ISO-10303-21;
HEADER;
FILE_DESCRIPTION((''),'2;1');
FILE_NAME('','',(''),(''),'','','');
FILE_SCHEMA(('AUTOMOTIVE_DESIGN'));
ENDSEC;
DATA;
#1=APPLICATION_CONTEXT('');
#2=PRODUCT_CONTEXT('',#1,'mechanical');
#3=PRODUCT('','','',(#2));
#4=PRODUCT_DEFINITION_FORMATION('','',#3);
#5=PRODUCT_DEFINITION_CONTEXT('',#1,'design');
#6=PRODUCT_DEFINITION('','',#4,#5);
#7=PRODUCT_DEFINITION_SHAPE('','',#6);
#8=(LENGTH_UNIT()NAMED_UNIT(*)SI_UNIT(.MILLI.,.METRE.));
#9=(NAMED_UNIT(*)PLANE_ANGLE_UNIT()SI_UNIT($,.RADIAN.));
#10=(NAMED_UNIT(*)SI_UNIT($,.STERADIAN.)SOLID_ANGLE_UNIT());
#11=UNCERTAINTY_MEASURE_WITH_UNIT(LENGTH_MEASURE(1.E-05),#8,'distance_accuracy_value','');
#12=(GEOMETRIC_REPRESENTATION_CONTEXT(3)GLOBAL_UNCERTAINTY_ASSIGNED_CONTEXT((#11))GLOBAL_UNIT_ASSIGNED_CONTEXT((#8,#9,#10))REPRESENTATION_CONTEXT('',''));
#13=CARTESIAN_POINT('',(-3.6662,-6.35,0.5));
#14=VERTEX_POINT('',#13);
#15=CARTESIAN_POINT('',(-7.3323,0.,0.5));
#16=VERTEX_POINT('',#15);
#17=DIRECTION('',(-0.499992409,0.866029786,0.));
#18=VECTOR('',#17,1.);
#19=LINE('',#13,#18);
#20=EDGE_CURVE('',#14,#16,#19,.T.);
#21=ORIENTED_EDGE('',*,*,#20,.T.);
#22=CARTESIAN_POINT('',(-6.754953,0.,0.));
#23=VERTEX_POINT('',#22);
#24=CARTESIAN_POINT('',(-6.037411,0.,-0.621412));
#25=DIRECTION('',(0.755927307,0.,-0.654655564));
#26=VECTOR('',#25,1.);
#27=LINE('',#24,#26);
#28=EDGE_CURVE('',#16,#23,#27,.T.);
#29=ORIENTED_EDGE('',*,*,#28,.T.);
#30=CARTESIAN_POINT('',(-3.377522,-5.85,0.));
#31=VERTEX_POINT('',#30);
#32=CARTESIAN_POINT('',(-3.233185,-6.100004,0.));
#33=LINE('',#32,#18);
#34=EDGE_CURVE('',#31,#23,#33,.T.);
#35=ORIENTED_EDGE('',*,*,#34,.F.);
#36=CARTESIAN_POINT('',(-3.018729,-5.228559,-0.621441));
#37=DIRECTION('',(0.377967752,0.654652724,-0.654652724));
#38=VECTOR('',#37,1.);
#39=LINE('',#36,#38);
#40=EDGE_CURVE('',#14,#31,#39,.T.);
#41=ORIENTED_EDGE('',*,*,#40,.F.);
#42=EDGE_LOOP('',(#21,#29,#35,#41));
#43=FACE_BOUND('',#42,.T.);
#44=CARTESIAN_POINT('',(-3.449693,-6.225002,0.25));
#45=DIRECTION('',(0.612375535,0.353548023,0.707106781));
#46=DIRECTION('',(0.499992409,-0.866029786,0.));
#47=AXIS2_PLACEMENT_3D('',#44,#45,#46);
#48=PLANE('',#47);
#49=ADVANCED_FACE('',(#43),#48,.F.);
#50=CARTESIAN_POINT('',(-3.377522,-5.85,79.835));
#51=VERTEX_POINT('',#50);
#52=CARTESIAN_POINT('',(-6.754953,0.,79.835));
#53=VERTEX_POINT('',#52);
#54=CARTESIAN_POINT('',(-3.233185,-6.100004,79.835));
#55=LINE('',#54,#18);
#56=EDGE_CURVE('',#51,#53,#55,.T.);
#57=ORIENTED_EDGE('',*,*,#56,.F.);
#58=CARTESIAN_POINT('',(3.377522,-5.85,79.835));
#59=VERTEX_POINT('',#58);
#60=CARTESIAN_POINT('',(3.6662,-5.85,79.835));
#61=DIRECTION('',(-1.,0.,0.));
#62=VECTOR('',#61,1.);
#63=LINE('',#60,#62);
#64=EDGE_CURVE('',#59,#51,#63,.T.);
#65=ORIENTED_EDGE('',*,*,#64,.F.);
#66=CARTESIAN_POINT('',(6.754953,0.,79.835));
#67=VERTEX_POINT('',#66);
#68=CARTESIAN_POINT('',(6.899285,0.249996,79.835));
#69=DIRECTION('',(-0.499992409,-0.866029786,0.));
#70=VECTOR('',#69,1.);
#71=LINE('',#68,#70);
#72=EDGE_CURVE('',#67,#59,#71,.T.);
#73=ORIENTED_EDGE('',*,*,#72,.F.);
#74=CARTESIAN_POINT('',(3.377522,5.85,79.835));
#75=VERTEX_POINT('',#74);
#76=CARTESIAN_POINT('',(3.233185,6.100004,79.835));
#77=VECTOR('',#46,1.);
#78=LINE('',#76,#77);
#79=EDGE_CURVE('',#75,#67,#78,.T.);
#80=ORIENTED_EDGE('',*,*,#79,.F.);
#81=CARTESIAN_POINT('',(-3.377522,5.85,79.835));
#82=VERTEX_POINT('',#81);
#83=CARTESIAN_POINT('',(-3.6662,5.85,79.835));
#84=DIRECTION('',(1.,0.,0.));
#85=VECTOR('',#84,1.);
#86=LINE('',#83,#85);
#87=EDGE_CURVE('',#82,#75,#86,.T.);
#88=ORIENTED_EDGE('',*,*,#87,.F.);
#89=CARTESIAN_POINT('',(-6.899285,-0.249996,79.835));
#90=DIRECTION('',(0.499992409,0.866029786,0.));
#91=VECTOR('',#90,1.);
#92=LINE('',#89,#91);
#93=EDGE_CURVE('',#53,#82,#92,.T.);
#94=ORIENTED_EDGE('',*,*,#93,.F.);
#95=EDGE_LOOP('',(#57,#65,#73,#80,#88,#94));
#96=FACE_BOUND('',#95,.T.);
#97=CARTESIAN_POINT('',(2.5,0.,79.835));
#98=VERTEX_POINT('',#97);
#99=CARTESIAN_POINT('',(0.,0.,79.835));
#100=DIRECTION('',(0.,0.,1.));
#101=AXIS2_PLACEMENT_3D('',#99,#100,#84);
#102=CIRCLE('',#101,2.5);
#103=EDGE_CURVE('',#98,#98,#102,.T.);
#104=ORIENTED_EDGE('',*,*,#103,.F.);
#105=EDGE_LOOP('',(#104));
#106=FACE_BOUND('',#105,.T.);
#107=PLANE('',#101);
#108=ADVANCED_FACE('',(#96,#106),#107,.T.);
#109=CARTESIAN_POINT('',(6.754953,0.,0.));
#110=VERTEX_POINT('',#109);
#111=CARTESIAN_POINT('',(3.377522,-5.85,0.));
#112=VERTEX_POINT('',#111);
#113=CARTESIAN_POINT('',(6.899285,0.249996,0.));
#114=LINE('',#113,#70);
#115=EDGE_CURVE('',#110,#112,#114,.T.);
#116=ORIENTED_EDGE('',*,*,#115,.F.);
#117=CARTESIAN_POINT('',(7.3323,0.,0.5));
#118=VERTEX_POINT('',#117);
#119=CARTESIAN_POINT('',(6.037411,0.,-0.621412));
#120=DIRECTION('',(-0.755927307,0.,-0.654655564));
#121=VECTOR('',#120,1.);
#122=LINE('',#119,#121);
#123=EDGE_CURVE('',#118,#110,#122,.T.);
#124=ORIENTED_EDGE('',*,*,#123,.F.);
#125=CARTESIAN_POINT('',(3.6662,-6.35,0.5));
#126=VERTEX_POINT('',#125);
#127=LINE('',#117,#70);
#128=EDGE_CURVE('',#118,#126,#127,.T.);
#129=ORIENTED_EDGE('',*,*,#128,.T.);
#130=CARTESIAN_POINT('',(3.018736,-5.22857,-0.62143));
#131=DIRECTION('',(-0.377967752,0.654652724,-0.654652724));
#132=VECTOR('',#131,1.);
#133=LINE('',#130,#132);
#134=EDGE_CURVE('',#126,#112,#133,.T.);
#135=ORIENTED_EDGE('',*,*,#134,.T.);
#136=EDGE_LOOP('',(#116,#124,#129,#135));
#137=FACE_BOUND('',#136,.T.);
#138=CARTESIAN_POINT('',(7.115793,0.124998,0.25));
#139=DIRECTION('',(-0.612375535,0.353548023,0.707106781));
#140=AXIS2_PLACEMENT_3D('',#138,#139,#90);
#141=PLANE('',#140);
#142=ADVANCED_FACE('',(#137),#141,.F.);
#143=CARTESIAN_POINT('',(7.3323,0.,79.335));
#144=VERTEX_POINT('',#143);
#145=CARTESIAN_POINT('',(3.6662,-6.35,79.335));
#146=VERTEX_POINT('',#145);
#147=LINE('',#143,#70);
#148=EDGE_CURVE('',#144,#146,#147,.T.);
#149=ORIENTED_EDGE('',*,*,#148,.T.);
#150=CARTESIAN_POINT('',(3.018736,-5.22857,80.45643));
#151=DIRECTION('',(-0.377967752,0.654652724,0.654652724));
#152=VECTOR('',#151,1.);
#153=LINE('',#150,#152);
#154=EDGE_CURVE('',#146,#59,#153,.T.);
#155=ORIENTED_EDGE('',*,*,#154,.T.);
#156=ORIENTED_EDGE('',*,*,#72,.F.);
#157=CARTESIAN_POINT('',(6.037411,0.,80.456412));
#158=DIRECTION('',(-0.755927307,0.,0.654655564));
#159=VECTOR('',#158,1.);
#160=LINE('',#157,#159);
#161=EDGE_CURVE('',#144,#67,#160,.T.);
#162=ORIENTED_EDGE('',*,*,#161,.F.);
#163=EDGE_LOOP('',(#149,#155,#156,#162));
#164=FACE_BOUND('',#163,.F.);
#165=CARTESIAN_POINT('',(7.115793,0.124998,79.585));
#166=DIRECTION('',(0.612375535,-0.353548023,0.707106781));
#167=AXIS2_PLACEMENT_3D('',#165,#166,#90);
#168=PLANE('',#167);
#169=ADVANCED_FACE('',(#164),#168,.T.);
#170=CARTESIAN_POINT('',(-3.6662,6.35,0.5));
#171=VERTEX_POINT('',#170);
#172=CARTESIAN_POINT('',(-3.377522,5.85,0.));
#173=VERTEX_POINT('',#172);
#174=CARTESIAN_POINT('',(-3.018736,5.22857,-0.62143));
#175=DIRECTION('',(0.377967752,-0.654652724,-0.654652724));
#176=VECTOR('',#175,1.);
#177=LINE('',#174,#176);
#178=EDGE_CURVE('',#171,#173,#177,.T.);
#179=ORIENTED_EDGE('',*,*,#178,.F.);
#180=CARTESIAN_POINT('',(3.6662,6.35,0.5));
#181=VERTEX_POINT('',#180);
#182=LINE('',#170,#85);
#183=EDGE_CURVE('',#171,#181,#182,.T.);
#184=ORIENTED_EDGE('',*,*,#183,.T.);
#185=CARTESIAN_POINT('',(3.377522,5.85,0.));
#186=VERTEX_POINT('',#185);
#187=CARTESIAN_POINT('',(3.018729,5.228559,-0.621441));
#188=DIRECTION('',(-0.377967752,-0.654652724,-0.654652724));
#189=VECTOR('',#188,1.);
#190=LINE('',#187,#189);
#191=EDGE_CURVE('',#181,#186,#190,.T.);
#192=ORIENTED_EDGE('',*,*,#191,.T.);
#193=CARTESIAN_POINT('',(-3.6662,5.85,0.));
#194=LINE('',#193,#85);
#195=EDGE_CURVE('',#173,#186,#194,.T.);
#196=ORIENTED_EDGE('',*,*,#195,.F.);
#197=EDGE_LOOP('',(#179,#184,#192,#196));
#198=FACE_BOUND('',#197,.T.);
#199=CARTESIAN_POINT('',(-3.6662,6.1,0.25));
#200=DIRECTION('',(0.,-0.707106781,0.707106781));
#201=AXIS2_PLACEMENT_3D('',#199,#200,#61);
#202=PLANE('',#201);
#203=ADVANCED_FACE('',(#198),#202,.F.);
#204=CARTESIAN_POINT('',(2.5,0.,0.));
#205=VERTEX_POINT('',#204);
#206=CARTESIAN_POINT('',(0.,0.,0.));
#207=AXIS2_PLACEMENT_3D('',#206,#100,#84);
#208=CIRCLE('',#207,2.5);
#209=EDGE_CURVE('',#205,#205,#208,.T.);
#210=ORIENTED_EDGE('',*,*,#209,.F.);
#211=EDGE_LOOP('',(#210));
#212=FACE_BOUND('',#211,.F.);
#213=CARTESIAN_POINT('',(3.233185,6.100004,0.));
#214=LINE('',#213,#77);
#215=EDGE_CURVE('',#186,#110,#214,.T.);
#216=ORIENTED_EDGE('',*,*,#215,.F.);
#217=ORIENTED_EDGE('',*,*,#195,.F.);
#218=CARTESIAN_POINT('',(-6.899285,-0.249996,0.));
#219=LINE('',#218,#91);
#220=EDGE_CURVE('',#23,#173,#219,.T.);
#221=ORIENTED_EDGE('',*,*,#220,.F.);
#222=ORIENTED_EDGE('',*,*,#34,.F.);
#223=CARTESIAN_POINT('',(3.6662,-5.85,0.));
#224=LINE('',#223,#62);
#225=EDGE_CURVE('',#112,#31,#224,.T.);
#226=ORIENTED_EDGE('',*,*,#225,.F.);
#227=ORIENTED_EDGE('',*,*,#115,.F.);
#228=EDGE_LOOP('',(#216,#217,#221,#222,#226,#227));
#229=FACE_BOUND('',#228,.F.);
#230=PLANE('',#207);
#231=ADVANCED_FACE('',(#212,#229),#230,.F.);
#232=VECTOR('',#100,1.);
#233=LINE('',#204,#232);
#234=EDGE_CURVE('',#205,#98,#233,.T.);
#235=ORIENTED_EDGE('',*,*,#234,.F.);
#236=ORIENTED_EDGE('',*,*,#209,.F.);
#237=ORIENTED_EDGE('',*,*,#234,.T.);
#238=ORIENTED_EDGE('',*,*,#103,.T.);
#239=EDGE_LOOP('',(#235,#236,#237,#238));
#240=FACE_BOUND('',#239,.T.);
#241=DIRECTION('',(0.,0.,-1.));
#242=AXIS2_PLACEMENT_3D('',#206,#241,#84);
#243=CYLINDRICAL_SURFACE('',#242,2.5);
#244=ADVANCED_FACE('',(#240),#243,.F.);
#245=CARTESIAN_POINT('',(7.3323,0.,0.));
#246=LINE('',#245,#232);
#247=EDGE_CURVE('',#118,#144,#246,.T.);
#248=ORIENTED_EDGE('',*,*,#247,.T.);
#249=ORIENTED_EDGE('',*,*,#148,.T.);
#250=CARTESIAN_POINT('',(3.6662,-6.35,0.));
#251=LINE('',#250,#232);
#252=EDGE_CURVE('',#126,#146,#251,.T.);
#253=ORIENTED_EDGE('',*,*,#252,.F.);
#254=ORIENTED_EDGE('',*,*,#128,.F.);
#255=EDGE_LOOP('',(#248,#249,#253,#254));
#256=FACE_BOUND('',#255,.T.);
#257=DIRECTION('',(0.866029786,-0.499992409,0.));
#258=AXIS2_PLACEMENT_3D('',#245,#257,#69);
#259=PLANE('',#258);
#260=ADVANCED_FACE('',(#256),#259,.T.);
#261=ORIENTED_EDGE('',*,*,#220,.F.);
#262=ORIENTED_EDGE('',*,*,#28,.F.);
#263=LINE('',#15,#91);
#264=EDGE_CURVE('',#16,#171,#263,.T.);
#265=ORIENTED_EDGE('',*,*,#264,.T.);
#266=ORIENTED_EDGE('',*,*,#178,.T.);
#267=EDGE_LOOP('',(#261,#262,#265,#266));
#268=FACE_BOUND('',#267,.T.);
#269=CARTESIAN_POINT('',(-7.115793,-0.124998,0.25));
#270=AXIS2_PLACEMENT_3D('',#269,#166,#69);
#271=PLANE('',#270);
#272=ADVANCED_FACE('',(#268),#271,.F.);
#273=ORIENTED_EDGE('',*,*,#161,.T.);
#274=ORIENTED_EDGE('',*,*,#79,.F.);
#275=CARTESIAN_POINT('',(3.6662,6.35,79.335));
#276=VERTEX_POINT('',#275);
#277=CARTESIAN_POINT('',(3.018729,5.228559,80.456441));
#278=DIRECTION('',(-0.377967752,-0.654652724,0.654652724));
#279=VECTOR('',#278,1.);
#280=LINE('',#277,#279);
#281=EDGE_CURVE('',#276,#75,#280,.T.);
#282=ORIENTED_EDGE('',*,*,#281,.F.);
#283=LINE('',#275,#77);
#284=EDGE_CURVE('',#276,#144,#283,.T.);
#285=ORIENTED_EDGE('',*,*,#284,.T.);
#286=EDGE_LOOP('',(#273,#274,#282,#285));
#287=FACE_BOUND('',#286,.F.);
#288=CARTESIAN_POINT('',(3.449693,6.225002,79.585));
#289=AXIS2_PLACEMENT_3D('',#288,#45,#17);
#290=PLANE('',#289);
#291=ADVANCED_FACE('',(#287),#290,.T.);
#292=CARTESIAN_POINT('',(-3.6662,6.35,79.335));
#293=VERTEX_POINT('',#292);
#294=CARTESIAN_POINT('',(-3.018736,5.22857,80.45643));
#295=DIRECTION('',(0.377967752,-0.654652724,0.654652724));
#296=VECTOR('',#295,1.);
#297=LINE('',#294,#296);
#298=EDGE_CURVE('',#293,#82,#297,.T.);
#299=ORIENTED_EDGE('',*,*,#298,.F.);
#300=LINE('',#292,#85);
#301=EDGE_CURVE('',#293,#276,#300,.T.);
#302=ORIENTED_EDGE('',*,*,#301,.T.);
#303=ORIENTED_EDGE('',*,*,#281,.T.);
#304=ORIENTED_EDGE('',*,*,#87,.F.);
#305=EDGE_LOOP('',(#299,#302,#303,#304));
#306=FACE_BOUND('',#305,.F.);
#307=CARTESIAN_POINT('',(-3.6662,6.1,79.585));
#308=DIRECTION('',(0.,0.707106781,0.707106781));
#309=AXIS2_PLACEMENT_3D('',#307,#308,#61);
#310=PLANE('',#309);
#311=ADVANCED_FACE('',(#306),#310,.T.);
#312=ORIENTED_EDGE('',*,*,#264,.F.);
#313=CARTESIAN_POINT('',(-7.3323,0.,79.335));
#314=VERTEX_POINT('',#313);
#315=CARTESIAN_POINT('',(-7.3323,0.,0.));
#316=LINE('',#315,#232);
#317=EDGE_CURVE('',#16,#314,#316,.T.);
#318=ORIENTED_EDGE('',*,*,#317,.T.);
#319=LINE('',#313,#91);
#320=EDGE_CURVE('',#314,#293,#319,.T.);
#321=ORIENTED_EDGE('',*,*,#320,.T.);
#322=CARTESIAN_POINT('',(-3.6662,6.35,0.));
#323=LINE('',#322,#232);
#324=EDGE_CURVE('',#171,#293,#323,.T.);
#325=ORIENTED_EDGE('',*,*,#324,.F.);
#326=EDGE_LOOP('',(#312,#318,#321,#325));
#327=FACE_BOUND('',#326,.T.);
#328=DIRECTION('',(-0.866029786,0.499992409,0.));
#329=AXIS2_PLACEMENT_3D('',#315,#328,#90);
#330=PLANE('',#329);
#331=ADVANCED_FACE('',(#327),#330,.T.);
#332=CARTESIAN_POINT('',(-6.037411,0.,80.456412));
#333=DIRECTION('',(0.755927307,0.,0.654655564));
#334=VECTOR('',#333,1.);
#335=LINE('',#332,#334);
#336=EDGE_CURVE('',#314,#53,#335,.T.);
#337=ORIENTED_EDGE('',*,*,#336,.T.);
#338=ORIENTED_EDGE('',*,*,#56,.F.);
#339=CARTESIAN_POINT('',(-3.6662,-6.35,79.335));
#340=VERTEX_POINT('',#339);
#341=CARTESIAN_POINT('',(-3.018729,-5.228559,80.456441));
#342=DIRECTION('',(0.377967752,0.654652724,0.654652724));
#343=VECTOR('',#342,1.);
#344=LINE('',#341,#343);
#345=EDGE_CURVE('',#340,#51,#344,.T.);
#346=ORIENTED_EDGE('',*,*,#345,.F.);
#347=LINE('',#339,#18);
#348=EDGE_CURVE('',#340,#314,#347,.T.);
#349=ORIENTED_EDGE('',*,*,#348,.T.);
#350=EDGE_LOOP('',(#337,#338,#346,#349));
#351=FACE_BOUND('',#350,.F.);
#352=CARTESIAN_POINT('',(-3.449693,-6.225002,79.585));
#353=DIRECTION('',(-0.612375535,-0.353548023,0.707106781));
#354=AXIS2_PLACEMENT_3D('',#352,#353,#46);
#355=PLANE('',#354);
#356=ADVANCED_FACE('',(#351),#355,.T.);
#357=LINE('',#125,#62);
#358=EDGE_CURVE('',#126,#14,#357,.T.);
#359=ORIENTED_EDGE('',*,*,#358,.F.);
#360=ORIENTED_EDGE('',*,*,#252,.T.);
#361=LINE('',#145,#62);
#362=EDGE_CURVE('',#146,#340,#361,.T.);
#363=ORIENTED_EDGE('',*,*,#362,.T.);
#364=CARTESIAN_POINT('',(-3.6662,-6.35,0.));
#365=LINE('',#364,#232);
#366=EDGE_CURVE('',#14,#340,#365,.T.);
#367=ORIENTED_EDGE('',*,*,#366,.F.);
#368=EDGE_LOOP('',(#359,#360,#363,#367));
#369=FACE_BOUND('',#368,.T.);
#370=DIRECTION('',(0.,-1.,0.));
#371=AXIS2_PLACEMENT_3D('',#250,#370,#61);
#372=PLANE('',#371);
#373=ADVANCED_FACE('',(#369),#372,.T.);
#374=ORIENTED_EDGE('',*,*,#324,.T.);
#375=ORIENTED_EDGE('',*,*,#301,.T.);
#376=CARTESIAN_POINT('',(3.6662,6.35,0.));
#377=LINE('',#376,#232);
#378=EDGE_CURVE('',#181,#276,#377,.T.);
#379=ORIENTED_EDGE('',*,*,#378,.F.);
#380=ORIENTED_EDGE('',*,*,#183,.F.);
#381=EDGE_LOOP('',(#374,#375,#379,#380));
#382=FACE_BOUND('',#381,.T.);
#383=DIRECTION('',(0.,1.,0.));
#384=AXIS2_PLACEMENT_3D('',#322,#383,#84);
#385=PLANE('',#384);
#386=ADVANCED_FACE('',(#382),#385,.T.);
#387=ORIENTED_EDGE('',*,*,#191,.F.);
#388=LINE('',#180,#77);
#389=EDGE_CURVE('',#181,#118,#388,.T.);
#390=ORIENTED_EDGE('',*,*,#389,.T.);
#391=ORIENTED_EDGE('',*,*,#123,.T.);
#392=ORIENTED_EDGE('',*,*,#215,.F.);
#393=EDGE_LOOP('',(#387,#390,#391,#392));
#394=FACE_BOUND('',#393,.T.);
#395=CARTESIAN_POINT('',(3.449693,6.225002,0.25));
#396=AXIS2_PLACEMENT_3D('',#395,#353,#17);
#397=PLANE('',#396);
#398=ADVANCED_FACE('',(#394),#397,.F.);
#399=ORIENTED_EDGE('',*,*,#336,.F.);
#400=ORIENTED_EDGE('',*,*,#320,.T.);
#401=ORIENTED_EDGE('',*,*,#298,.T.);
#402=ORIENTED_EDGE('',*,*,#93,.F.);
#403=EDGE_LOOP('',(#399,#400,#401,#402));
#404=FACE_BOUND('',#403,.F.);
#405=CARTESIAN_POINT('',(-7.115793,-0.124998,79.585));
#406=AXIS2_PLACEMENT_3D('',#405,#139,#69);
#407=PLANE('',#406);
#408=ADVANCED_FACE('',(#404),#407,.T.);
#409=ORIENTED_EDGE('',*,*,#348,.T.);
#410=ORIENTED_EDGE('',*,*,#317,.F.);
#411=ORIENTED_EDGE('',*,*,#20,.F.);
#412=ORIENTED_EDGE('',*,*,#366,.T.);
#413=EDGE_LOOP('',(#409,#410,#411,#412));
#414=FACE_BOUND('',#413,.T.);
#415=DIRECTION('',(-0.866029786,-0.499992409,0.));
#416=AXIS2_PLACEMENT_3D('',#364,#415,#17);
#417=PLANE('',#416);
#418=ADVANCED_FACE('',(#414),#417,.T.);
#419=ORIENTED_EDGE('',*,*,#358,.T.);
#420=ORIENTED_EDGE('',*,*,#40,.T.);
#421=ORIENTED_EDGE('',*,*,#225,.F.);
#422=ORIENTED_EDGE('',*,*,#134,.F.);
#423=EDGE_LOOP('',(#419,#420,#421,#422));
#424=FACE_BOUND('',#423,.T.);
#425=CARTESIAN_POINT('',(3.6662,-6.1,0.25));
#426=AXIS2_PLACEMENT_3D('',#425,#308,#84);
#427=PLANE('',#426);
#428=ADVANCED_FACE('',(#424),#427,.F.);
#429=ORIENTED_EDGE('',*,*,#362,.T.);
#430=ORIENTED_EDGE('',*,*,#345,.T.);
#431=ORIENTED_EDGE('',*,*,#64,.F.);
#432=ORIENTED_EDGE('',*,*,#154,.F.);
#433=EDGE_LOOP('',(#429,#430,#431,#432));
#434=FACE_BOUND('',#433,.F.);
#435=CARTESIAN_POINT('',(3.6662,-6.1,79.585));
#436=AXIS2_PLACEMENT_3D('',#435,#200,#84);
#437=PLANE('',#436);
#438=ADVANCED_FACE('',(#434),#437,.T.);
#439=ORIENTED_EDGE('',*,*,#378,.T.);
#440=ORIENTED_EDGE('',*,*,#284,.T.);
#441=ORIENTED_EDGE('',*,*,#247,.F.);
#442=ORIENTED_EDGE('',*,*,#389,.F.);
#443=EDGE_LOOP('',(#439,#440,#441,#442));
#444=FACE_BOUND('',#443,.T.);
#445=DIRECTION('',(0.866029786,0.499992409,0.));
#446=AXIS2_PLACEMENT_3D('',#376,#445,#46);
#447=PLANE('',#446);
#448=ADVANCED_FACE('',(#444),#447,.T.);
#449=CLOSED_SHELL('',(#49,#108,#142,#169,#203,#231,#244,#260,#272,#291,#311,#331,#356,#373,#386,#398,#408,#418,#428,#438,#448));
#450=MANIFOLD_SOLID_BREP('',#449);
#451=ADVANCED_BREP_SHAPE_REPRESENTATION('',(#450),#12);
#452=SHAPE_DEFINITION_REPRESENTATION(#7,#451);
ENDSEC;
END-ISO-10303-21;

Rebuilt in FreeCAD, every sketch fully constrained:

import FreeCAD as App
import Part
import Sketcher

V = App.Vector
Q = App.Units.Quantity


def edges_at(feature, points):
    """Names of the edges that pass closest to the given points."""
    edges = feature.Shape.Edges
    near = lambda p: min(range(len(edges)), key=lambda i: edges[i].distToShape(Part.Vertex(*p))[0])
    return sorted({f"Edge{near(p) + 1}" for p in points})

doc = App.newDocument("Part")
body = doc.addObject("PartDesign::Body", "Body")

# Sketch on XY plane
sketch1 = body.newObject("Sketcher::SketchObject", "Sketch")
sketch1.AttachmentSupport = (doc.getObject("XY_Plane"), [""])
sketch1.MapMode = "FlatFace"
sketch1.addGeometry([
    Part.LineSegment(V(-3.7, 6.3, 0), V(-7.3, 0, 0)),  # 0
    Part.LineSegment(V(-7.3, 0, 0), V(-3.7, -6.3, 0)),  # 1
    Part.LineSegment(V(-3.7, -6.3, 0), V(3.7, -6.3, 0)),  # 2
    Part.LineSegment(V(3.7, -6.3, 0), V(7.3, 0, 0)),  # 3
    Part.LineSegment(V(7.3, 0, 0), V(3.7, 6.3, 0)),  # 4
    Part.LineSegment(V(3.7, 6.3, 0), V(-3.7, 6.3, 0)),  # 5
    Part.Circle(V(0, 0, 0), V(0, 0, 1), 2.5),  # 6
], False)
sketch1.addConstraint([
    Sketcher.Constraint("Coincident", 0, 2, 1, 1),
    Sketcher.Constraint("Coincident", 1, 2, 2, 1),
    Sketcher.Constraint("Coincident", 2, 2, 3, 1),
    Sketcher.Constraint("Coincident", 3, 2, 4, 1),
    Sketcher.Constraint("Coincident", 4, 2, 5, 1),
    Sketcher.Constraint("Coincident", 5, 2, 0, 1),
    Sketcher.Constraint("Horizontal", 2),
    Sketcher.Constraint("Horizontal", 5),
    Sketcher.Constraint("Coincident", 6, 3, -1, 1),
    Sketcher.Constraint("Symmetric", 0, 2, 3, 2, -1, 1),
    Sketcher.Constraint("Symmetric", 1, 2, 4, 2, -1, 1),
    Sketcher.Constraint("PointOnObject", 0, 2, -1),
    Sketcher.Constraint("Parallel", 0, 3),
    Sketcher.Constraint("Vertical", 2, 2, 4, 2),
    Sketcher.Constraint("Diameter", 6, 5.0),
    Sketcher.Constraint("DistanceY", 2, 2, 4, 2, 12.7),
    Sketcher.Constraint("Angle", 0, Q("-119.9995 deg")),
    Sketcher.Constraint("DistanceX", 2, 1, 2, 2, 7.3324),
])
pad1 = body.newObject("PartDesign::Pad", "Pad")
pad1.Profile = sketch1
pad1.Length = 79.835
doc.recompute()

chamfer = body.newObject("PartDesign::Chamfer", "Chamfer")
chamfer.Base = (pad1, edges_at(pad1, [
    (0, -6.35, 0),
    (-5.499, -3.175, 0),
    (-5.499, 3.175, 0),
    (0, 6.35, 0),
    (5.499, 3.175, 0),
    (5.499, -3.175, 0),
    (0, -6.35, 79.835),
    (5.499, -3.175, 79.835),
    (5.499, 3.175, 79.835),
    (0, 6.35, 79.835),
    (-5.499, 3.175, 79.835),
    (-5.499, -3.175, 79.835),
]))
chamfer.Size = 0.5

doc.recompute()
